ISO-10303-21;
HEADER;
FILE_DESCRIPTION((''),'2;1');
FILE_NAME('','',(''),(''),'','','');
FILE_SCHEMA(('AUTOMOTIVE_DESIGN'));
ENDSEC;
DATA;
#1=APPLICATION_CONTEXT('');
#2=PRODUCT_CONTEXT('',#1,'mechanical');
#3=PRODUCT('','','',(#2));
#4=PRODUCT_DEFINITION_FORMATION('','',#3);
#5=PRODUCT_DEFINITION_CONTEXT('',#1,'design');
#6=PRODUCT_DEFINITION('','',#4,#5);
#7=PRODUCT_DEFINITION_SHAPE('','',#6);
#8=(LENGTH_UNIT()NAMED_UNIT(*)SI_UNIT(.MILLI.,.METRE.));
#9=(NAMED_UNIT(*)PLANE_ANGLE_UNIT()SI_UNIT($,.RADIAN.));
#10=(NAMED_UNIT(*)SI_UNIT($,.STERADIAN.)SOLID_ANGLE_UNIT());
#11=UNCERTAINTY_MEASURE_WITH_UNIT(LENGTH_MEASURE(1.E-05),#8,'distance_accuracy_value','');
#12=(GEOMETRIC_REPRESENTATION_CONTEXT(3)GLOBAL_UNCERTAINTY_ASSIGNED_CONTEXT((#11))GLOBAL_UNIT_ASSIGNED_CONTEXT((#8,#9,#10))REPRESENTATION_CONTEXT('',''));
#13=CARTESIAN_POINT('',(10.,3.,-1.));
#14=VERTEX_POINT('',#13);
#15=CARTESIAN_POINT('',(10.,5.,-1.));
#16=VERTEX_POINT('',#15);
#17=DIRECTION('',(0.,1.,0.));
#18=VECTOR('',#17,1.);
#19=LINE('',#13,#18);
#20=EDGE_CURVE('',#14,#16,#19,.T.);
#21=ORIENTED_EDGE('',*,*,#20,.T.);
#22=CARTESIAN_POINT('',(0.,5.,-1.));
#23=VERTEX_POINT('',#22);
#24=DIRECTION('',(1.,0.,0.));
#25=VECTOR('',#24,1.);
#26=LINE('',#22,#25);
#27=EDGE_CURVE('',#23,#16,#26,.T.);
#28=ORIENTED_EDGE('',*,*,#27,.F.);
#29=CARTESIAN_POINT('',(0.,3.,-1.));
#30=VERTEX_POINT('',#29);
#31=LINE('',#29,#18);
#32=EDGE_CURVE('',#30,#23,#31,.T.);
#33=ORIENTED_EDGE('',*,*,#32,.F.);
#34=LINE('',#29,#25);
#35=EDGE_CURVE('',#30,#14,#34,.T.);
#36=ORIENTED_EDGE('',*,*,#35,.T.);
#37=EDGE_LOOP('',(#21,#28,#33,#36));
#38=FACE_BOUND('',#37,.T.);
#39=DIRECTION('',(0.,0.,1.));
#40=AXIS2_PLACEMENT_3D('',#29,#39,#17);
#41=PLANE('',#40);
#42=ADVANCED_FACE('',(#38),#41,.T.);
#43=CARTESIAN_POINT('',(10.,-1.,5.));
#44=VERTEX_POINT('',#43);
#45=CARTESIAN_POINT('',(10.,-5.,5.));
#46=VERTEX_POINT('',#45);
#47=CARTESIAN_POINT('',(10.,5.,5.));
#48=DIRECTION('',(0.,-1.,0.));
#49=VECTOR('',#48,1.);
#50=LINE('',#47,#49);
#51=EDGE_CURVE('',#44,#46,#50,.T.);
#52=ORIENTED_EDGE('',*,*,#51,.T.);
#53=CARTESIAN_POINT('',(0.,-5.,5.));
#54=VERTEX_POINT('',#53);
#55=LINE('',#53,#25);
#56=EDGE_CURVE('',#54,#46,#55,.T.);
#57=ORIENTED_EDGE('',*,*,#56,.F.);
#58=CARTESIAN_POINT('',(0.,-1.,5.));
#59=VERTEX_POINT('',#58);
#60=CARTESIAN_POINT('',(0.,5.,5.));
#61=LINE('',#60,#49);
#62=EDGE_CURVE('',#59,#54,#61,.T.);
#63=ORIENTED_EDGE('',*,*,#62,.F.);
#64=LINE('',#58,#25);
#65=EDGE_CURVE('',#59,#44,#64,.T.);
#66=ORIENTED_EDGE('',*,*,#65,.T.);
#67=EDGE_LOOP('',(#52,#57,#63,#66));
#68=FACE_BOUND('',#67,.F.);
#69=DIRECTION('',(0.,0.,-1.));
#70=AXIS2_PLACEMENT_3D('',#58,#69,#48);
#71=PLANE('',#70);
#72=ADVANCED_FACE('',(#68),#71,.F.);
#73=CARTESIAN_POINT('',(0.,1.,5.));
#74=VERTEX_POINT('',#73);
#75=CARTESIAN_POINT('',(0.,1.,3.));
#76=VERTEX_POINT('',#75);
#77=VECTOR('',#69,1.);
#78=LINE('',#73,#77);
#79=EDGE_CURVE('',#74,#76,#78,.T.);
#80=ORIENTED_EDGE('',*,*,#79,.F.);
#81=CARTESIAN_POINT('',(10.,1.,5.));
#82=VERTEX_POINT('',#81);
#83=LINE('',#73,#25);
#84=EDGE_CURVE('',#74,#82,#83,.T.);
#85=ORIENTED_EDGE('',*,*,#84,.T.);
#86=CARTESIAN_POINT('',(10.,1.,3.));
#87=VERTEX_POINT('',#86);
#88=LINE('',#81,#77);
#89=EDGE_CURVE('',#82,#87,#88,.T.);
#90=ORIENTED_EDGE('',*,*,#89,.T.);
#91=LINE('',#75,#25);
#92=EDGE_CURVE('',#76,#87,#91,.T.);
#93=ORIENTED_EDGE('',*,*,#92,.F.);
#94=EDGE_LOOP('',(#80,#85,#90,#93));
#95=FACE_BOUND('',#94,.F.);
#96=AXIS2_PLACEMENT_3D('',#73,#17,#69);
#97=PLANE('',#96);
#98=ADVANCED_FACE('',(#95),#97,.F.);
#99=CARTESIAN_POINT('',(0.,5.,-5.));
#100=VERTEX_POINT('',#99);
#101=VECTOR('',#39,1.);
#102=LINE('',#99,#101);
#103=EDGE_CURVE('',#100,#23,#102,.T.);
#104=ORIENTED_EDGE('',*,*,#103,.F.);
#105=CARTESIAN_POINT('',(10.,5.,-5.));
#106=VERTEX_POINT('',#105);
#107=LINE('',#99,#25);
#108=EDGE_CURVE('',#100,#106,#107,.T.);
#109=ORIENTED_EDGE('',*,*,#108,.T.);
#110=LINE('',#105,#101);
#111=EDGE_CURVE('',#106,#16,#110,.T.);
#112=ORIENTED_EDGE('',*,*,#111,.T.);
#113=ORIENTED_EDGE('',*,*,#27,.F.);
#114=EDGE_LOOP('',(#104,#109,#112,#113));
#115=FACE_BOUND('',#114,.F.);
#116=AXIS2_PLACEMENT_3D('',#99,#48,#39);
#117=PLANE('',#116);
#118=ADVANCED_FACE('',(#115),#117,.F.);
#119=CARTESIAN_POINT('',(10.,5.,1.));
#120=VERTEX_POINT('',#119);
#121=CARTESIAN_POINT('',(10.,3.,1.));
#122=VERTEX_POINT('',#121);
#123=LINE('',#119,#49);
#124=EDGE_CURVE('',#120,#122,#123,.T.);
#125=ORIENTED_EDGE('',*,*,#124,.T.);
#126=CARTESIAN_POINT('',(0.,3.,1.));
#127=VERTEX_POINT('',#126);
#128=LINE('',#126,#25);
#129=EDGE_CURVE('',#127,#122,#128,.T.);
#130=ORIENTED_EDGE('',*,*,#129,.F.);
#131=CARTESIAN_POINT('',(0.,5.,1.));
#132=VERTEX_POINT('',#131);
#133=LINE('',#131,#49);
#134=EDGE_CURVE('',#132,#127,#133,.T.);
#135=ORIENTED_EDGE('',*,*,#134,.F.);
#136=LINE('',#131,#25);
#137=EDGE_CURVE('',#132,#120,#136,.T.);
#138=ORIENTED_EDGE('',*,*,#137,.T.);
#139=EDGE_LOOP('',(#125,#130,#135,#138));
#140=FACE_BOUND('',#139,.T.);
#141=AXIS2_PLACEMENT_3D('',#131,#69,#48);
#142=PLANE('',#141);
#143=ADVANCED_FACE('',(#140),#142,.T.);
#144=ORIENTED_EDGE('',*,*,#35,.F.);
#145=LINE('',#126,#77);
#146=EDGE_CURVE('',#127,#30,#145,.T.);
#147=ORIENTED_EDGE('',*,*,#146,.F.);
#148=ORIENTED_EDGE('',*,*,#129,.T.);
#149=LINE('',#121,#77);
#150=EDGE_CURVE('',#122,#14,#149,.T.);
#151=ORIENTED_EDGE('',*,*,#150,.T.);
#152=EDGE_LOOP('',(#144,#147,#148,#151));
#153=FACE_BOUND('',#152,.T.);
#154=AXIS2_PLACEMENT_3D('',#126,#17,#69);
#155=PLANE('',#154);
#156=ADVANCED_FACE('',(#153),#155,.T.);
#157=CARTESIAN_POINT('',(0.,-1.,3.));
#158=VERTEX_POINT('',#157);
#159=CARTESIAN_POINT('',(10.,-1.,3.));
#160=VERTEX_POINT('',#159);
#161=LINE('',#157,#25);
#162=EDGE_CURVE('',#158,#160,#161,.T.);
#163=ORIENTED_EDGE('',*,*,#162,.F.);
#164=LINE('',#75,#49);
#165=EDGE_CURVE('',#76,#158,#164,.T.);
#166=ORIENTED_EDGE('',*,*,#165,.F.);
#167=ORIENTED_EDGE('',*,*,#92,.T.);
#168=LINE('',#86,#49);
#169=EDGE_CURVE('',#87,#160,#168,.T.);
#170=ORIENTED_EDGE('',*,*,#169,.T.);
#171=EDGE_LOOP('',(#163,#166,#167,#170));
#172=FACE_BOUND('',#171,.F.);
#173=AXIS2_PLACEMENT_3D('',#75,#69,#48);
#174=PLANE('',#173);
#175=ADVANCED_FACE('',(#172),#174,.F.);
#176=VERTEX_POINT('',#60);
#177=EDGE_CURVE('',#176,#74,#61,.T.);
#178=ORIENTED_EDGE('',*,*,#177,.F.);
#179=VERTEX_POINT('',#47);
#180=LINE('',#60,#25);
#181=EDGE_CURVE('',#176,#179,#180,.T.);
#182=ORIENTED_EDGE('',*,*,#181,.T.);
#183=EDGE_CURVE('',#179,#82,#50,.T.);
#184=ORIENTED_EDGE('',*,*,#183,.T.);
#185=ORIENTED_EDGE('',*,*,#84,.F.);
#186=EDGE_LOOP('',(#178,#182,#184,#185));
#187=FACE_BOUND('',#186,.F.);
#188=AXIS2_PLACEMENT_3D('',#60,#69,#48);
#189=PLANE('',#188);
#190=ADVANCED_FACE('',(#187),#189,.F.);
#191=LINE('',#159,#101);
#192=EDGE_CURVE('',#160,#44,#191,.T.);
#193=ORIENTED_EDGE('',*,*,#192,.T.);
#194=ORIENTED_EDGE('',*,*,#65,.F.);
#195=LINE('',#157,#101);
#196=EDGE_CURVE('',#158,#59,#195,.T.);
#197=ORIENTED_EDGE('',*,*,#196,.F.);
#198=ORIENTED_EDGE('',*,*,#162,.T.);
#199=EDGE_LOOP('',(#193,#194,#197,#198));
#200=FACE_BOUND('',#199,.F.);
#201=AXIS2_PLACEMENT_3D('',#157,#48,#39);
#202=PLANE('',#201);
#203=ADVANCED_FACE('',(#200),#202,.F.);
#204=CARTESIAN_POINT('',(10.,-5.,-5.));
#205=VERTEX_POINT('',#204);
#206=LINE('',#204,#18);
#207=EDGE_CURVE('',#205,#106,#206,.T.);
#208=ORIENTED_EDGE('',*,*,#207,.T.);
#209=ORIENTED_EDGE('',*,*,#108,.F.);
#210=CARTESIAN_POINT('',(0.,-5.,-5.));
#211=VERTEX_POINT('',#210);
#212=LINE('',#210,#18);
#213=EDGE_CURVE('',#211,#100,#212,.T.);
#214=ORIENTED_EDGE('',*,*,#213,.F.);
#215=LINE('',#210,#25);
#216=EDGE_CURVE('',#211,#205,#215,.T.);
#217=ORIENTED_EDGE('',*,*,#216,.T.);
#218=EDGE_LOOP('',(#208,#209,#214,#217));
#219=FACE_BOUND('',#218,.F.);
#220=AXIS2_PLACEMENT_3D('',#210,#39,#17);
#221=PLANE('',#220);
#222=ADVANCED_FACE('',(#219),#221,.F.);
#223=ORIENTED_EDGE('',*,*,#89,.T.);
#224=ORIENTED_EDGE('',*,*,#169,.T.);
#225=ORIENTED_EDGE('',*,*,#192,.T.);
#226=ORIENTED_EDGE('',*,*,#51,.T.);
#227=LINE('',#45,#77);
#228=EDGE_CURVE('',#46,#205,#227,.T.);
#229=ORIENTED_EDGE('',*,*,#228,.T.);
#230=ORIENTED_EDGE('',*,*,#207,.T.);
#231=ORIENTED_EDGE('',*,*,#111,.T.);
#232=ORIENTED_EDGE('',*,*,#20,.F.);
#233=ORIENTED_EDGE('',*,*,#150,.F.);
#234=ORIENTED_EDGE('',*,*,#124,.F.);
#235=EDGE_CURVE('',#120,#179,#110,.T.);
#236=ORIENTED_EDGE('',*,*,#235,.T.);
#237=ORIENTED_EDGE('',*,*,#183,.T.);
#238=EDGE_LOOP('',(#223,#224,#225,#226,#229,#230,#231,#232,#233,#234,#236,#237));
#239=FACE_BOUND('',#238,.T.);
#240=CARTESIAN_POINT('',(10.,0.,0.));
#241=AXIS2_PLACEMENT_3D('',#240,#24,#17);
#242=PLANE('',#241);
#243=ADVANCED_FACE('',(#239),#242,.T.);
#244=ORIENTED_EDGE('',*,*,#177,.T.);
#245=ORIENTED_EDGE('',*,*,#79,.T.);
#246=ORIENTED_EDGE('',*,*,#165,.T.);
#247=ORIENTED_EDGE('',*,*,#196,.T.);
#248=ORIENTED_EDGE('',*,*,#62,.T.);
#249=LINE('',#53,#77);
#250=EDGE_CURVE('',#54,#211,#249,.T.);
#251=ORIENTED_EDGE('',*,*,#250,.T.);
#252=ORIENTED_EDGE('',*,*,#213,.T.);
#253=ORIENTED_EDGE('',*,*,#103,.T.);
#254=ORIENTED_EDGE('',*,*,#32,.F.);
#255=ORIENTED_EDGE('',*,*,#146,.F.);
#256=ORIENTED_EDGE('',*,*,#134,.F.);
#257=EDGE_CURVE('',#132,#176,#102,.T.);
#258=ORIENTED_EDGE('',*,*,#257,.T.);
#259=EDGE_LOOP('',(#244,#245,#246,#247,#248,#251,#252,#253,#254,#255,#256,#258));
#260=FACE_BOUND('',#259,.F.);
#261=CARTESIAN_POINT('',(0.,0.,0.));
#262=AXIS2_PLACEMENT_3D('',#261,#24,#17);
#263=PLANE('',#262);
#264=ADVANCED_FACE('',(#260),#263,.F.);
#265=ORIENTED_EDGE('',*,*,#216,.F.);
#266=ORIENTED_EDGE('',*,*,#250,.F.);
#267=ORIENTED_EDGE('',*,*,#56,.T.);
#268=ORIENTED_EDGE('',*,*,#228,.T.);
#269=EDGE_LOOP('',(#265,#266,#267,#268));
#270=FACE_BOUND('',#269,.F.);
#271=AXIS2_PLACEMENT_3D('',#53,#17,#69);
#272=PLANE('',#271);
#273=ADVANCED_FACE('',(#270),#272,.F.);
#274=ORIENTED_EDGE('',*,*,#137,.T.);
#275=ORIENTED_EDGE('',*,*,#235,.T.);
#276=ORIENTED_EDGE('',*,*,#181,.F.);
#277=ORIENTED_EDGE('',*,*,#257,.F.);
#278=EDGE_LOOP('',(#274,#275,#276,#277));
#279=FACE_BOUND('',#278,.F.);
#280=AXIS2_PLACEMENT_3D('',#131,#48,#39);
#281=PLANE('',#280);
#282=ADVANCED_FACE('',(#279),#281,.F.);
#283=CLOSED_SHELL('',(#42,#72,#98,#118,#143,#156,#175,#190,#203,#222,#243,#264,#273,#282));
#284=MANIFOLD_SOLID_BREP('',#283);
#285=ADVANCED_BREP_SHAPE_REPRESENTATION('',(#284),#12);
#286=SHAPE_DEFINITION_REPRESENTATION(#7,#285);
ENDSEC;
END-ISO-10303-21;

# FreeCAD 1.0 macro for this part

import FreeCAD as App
import Part
import Sketcher
from FreeCAD import Vector
Q = App.Units.Quantity


def add_polygon(sketch, points):
    """Adds a closed chain of lines whose ends are joined by coincident constraints."""
    first, n = sketch.GeometryCount, len(points)
    for a, b in zip(points, points[1:] + points[:1]):
        sketch.addGeometry(Part.LineSegment(App.Vector(*a, 0), App.Vector(*b, 0)), False)
    for i in range(n):
        sketch.addConstraint(Sketcher.Constraint("Coincident", first + i, 2, first + (i + 1) % n, 1))

doc = App.newDocument("Part")
body = doc.addObject("PartDesign::Body", "Body")

# Sketch on YZ plane
sketch1 = body.newObject("Sketcher::SketchObject", "Sketch")
sketch1.AttachmentSupport = (doc.getObject("YZ_Plane"), [""])
sketch1.MapMode = "FlatFace"
add_polygon(sketch1, [(-5, 5), (-5, -5), (5, -5), (5, -1), (3, -1), (3, 1), (5, 1), (5, 5), (1, 5), (1, 3), (-1, 3), (-1, 5)])  # lines 0-11
sketch1.addConstraint(Sketcher.Constraint("Vertical", 0))
sketch1.addConstraint(Sketcher.Constraint("Horizontal", 1))
sketch1.addConstraint(Sketcher.Constraint("Vertical", 2))
sketch1.addConstraint(Sketcher.Constraint("Horizontal", 3))
sketch1.addConstraint(Sketcher.Constraint("Vertical", 4))
sketch1.addConstraint(Sketcher.Constraint("Horizontal", 5))
sketch1.addConstraint(Sketcher.Constraint("Vertical", 6))
sketch1.addConstraint(Sketcher.Constraint("Horizontal", 7))
sketch1.addConstraint(Sketcher.Constraint("Vertical", 8))
sketch1.addConstraint(Sketcher.Constraint("Horizontal", 9))
sketch1.addConstraint(Sketcher.Constraint("Vertical", 10))
sketch1.addConstraint(Sketcher.Constraint("Horizontal", 11))
sketch1.addConstraint(Sketcher.Constraint("Symmetric", 0, 2, 6, 2, -1, 1))
sketch1.addConstraint(Sketcher.Constraint("Symmetric", 1, 2, 11, 2, -1, 1))
sketch1.addConstraint(Sketcher.Constraint("Equal", 5, 9))
sketch1.addConstraint(Sketcher.Constraint("Equal", 7, 11))
sketch1.addConstraint(Sketcher.Constraint("Equal", 1, 0))
sketch1.addConstraint(Sketcher.Constraint("Equal", 11, 2))
sketch1.addConstraint(Sketcher.Constraint("Equal", 9, 4))
sketch1.addConstraint(Sketcher.Constraint("Equal", 4, 8))
sketch1.addConstraint(Sketcher.Constraint("DistanceX", 3, 2, 3, 1, Q("2 mm")))
sketch1.addConstraint(Sketcher.Constraint("DistanceX", 0, 2, -1, 1, Q("5 mm")))
pad1 = body.newObject("PartDesign::Pad", "Pad")
pad1.Profile = sketch1
pad1.Length = 10

doc.recompute()
